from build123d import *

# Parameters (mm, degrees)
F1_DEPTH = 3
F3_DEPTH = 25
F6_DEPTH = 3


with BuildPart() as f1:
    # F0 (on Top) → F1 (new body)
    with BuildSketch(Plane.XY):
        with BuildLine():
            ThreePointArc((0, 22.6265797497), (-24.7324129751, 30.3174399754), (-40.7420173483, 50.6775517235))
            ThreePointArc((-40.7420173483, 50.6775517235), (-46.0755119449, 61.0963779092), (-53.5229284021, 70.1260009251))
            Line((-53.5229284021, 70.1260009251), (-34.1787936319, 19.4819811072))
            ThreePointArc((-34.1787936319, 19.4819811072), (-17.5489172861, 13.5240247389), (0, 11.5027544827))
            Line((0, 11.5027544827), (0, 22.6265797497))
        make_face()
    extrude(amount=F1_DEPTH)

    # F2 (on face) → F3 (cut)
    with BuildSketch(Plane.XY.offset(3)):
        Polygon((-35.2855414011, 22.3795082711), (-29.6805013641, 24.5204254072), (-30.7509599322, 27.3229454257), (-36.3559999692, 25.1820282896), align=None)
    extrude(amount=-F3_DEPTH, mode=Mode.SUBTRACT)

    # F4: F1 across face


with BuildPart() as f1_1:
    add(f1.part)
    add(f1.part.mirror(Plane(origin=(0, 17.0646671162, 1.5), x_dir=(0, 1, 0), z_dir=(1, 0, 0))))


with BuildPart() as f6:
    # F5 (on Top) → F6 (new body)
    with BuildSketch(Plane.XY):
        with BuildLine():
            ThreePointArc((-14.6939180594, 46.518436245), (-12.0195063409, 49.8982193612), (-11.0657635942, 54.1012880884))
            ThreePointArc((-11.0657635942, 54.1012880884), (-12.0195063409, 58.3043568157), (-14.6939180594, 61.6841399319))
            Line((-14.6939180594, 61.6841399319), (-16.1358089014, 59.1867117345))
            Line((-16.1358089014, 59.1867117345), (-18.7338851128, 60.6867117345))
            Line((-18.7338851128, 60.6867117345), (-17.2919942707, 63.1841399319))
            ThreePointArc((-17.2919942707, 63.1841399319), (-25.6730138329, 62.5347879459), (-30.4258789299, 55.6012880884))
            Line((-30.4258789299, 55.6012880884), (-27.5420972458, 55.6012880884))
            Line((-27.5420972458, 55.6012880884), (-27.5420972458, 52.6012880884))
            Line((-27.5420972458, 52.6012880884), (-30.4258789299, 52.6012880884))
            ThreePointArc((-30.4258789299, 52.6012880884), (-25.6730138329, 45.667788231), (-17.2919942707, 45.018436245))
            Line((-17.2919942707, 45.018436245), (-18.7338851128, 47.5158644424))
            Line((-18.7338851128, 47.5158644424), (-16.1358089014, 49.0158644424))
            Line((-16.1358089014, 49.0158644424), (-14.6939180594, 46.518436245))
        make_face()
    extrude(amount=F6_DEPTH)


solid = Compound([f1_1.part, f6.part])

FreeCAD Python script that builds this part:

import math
import FreeCAD as App
import Part
import Sketcher
from FreeCAD import Vector
Q = App.Units.Quantity

doc = App.newDocument("Part")
body = doc.addObject("PartDesign::Body", "Body")

sketch1 = doc.addObject("Sketcher::SketchObject", "Sketch")
body.addObject(sketch1)
sketch1.AttachmentSupport = (doc.XY_Plane, [""])
sketch1.MapMode = "FlatFace"
sketch1.addGeometry([
    Part.ArcOfCircle(Part.Circle(Vector(0, 66.239489, 0), Vector(0, 0, 1), 43.61291), math.radians(-159.095), math.radians(-90)),
    Part.ArcOfCircle(Part.Circle(Vector(-91.336272, 31.352425, 0), Vector(0, 0, 1), 54.159386), math.radians(20.905), math.radians(45.718326)),
    Part.LineSegment(Vector(-53.522928, 70.126001, 0), Vector(-34.178794, 19.481981, 0)),
    Part.ArcOfCircle(Part.Circle(Vector(0, 88.69432, 0), Vector(0, 0, 1), 77.191566), math.radians(-116.281318), math.radians(-90)),
    Part.LineSegment(Vector(0, 11.502754, 0), Vector(0, 22.62658, 0)),
], False)
sketch1.addConstraint([
    Sketcher.Constraint("Tangent", 0, 1, 1, 1),
    Sketcher.Constraint("Coincident", 1, 2, 2, 1),
    Sketcher.Constraint("Coincident", 2, 2, 3, 1),
    Sketcher.Constraint("Coincident", 3, 2, 4, 1),
    Sketcher.Constraint("Coincident", 4, 2, 0, 2),
    Sketcher.Constraint("Vertical", 4),
    Sketcher.Constraint("PointOnObject", 0, 3, -2),
    Sketcher.Constraint("PointOnObject", 3, 3, -2),
    Sketcher.Constraint("PointOnObject", 3, 2, -2),
    Sketcher.Constraint("Radius", 0, Q("43.61291 mm")),
    Sketcher.Constraint("DistanceY", -1, 1, 1, 2, Q("70.126001 mm")),
    Sketcher.Constraint("Radius", 1, Q("54.159386 mm")),
    Sketcher.Constraint("Radius", 3, Q("77.191566 mm")),
    Sketcher.Constraint("DistanceY", 2, 2, 4, 2, Q("3.144599 mm")),
    Sketcher.Constraint("Distance", 2, Q("54.212658 mm")),
    Sketcher.Constraint("DistanceY", 4, 1, 4, 2, Q("11.123825 mm")),
    Sketcher.Constraint("DistanceY", -1, 1, 0, 3, Q("66.239489 mm")),
])
pad1 = doc.addObject("PartDesign::Pad", "Pad")
body.addObject(pad1)
pad1.Profile = sketch1
pad1.Length = 3

sketch2 = doc.addObject("Sketcher::SketchObject", "Sketch001")
body.addObject(sketch2)
sketch2.AttachmentSupport = (doc.XY_Plane, [""])
sketch2.MapMode = "FlatFace"
sketch2.AttachmentOffset = App.Placement(Vector(0, 0, 3), App.Rotation())
sketch2.addGeometry([
    Part.LineSegment(Vector(-35.285541, 22.379508, 0), Vector(-29.680501, 24.520425, 0)),
    Part.LineSegment(Vector(-29.680501, 24.520425, 0), Vector(-30.75096, 27.322945, 0)),
    Part.LineSegment(Vector(-30.75096, 27.322945, 0), Vector(-36.356, 25.182028, 0)),
    Part.LineSegment(Vector(-36.356, 25.182028, 0), Vector(-35.285541, 22.379508, 0)),
], False)
sketch2.addConstraint([
    Sketcher.Constraint("Coincident", 0, 2, 1, 1),
    Sketcher.Constraint("Coincident", 1, 2, 2, 1),
    Sketcher.Constraint("Coincident", 2, 2, 3, 1),
    Sketcher.Constraint("Coincident", 3, 2, 0, 1),
    Sketcher.Constraint("Perpendicular", 0, 1),
    Sketcher.Constraint("Perpendicular", 1, 2),
    Sketcher.Constraint("Perpendicular", 2, 3),
    Sketcher.Constraint("Distance", 0, Q("6 mm")),
    Sketcher.Constraint("Distance", 1, Q("3 mm")),
    Sketcher.Constraint("DistanceX", 2, 2, -1, 1, Q("36.356 mm")),
    Sketcher.Constraint("DistanceX", 0, 2, -1, 1, Q("29.680501 mm")),
    Sketcher.Constraint("DistanceY", -1, 1, 2, 2, Q("25.182028 mm")),
])
pocket1 = doc.addObject("PartDesign::Pocket", "Pocket")
body.addObject(pocket1)
pocket1.Profile = sketch2
pocket1.Length = 25
body2 = doc.addObject("PartDesign::Body", "Body001")
doc.recompute()

body2.BaseFeature = body
doc.recompute()

mirroring = doc.addObject("Part::Mirroring", "Mirroring")
mirroring.Source = body
mirroring.Base = Vector(0, 17.064667, 1.5)
mirroring.Normal = Vector(1, 0, 0)
body3 = doc.addObject("PartDesign::Body", "Body002")
body3.BaseFeature = mirroring
boolean = doc.addObject("PartDesign::Boolean", "Boolean")
body2.addObject(boolean)
boolean.Type = "Fuse"
boolean.addObjects([body3])
doc.recompute()
body4 = doc.addObject("PartDesign::Body", "Body003")

sketch3 = doc.addObject("Sketcher::SketchObject", "Sketch002")
body4.addObject(sketch3)
sketch3.AttachmentSupport = (doc.getObject("XY_Plane003"), [""])
sketch3.MapMode = "FlatFace"
sketch3.addGeometry([
    Part.ArcOfCircle(Part.Circle(Vector(-20.80393, 54.101288, 0), Vector(0, 0, 1), 9.738167), math.radians(-51.139277), math.radians(0)),
    Part.ArcOfCircle(Part.Circle(Vector(-20.80393, 54.101288, 0), Vector(0, 0, 1), 9.738167), math.radians(0), math.radians(51.139277)),
    Part.LineSegment(Vector(-14.693918, 61.68414, 0), Vector(-16.135809, 59.186712, 0)),
    Part.LineSegment(Vector(-16.135809, 59.186712, 0), Vector(-18.733885, 60.686712, 0)),
    Part.LineSegment(Vector(-18.733885, 60.686712, 0), Vector(-17.291994, 63.18414, 0)),
    Part.ArcOfCircle(Part.Circle(Vector(-20.80393, 54.101288, 0), Vector(0, 0, 1), 9.738167), math.radians(68.860723), math.radians(171.139277)),
    Part.LineSegment(Vector(-30.425879, 55.601288, 0), Vector(-27.542097, 55.601288, 0)),
    Part.LineSegment(Vector(-27.542097, 55.601288, 0), Vector(-27.542097, 52.601288, 0)),
    Part.LineSegment(Vector(-27.542097, 52.601288, 0), Vector(-30.425879, 52.601288, 0)),
    Part.ArcOfCircle(Part.Circle(Vector(-20.80393, 54.101288, 0), Vector(0, 0, 1), 9.738167), math.radians(-171.139277), math.radians(-68.860723)),
    Part.LineSegment(Vector(-17.291994, 45.018436, 0), Vector(-18.733885, 47.515864, 0)),
    Part.LineSegment(Vector(-18.733885, 47.515864, 0), Vector(-16.135809, 49.015864, 0)),
    Part.LineSegment(Vector(-16.135809, 49.015864, 0), Vector(-14.693918, 46.518436, 0)),
], False)
sketch3.addConstraint([
    Sketcher.Constraint("Tangent", 0, 2, 1, 1),
    Sketcher.Constraint("Coincident", 1, 2, 2, 1),
    Sketcher.Constraint("Coincident", 2, 2, 3, 1),
    Sketcher.Constraint("Coincident", 3, 2, 4, 1),
    Sketcher.Constraint("Coincident", 4, 2, 5, 1),
    Sketcher.Constraint("Coincident", 5, 2, 6, 1),
    Sketcher.Constraint("Coincident", 6, 2, 7, 1),
    Sketcher.Constraint("Coincident", 7, 2, 8, 1),
    Sketcher.Constraint("Coincident", 8, 2, 9, 1),
    Sketcher.Constraint("Coincident", 9, 2, 10, 1),
    Sketcher.Constraint("Coincident", 10, 2, 11, 1),
    Sketcher.Constraint("Coincident", 11, 2, 12, 1),
    Sketcher.Constraint("Coincident", 12, 2, 0, 1),
    Sketcher.Constraint("Horizontal", 6),
    Sketcher.Constraint("Vertical", 7),
    Sketcher.Constraint("Horizontal", 8),
    Sketcher.Constraint("Coincident", 5, 3, 0, 3),
    Sketcher.Constraint("Coincident", 9, 3, 0, 3),
    Sketcher.Constraint("Equal", 0, 1),
    Sketcher.Constraint("Equal", 1, 5),
    Sketcher.Constraint("Equal", 5, 9),
    Sketcher.Constraint("Perpendicular", 2, 3),
    Sketcher.Constraint("Perpendicular", 3, 4),
    Sketcher.Constraint("Perpendicular", 10, 11),
    Sketcher.Constraint("Perpendicular", 11, 12),
    Sketcher.Constraint("Horizontal", 9, 3, 0, 2),
    Sketcher.Constraint("Vertical", 5, 2, 8, 2),
    Sketcher.Constraint("Vertical", 4, 2, 9, 2),
    Sketcher.Constraint("Vertical", 3, 2, 10, 2),
    Sketcher.Constraint("Vertical", 2, 2, 11, 2),
    Sketcher.Constraint("Vertical", 1, 2, 12, 2),
    Sketcher.Constraint("Equal", 2, 4),
    Sketcher.Constraint("DistanceY", 7, 2, 7, 1, Q("3 mm")),
    Sketcher.Constraint("Angle", 2, Q("-120 deg")),
    Sketcher.Constraint("Distance", 3, Q("3 mm")),
    Sketcher.Constraint("Radius", 0, Q("9.738167 mm")),
    Sketcher.Constraint("DistanceX", 6, 1, 6, 2, Q("2.883782 mm")),
    Sketcher.Constraint("Distance", 2, Q("2.883782 mm")),
    Sketcher.Constraint("DistanceX", 0, 3, -1, 1, Q("20.80393 mm")),
    Sketcher.Constraint("DistanceY", -1, 1, 0, 3, Q("54.101288 mm")),
])
pad2 = doc.addObject("PartDesign::Pad", "Pad001")
body4.addObject(pad2)
pad2.Profile = sketch3
pad2.Length = 3
mirroring.Visibility = False

doc.recompute()
